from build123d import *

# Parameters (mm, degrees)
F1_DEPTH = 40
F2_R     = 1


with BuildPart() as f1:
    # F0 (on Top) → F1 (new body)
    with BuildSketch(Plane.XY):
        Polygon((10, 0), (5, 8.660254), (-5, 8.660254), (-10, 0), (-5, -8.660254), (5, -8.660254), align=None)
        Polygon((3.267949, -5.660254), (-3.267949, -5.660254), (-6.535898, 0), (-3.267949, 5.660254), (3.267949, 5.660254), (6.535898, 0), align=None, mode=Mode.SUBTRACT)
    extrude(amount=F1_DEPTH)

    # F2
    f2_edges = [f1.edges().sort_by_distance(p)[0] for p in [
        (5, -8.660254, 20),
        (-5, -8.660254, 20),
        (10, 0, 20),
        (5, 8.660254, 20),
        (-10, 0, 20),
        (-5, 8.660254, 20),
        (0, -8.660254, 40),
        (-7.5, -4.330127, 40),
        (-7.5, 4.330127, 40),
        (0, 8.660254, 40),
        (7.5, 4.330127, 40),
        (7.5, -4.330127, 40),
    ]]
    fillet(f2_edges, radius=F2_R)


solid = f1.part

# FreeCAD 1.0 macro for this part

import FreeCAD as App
import Part
import Sketcher
from FreeCAD import Vector
Q = App.Units.Quantity


def edges_at(feature, points):
    """Names of the edges that pass closest to the given points."""
    edges = feature.Shape.Edges
    near = lambda p: min(range(len(edges)), key=lambda i: edges[i].distToShape(Part.Vertex(*p))[0])
    return sorted({f"Edge{near(p) + 1}" for p in points})

doc = App.newDocument("Part")
body = doc.addObject("PartDesign::Body", "Body")

sketch1 = body.newObject("Sketcher::SketchObject", "Sketch")
sketch1.AttachmentSupport = (doc.getObject("XY_Plane"), [""])
sketch1.MapMode = "FlatFace"
sketch1.addGeometry(Part.LineSegment(Vector(10, 0, 0), Vector(5, 9, 0)), False)
sketch1.addGeometry(Part.LineSegment(Vector(5, 9, 0), Vector(-5, 9, 0)), False)
sketch1.addGeometry(Part.LineSegment(Vector(-5, 9, 0), Vector(-10, 0, 0)), False)
sketch1.addGeometry(Part.LineSegment(Vector(-10, 0, 0), Vector(-5, -9, 0)), False)
sketch1.addGeometry(Part.LineSegment(Vector(-5, -9, 0), Vector(5, -9, 0)), False)
sketch1.addGeometry(Part.LineSegment(Vector(5, -9, 0), Vector(10, 0, 0)), False)
sketch1.addGeometry(Part.LineSegment(Vector(7, 0, 0), Vector(3, -6, 0)), False)
sketch1.addGeometry(Part.LineSegment(Vector(3, -6, 0), Vector(-3, -6, 0)), False)
sketch1.addGeometry(Part.LineSegment(Vector(-3, -6, 0), Vector(-7, 0, 0)), False)
sketch1.addGeometry(Part.LineSegment(Vector(-7, 0, 0), Vector(-3, 6, 0)), False)
sketch1.addGeometry(Part.LineSegment(Vector(-3, 6, 0), Vector(3, 6, 0)), False)
sketch1.addGeometry(Part.LineSegment(Vector(3, 6, 0), Vector(7, 0, 0)), False)
sketch1.addConstraint(Sketcher.Constraint("Coincident", 0, 2, 1, 1))
sketch1.addConstraint(Sketcher.Constraint("Coincident", 1, 2, 2, 1))
sketch1.addConstraint(Sketcher.Constraint("Coincident", 2, 2, 3, 1))
sketch1.addConstraint(Sketcher.Constraint("Coincident", 3, 2, 4, 1))
sketch1.addConstraint(Sketcher.Constraint("Coincident", 4, 2, 5, 1))
sketch1.addConstraint(Sketcher.Constraint("Coincident", 5, 2, 0, 1))
sketch1.addConstraint(Sketcher.Constraint("Coincident", 6, 2, 7, 1))
sketch1.addConstraint(Sketcher.Constraint("Coincident", 7, 2, 8, 1))
sketch1.addConstraint(Sketcher.Constraint("Coincident", 8, 2, 9, 1))
sketch1.addConstraint(Sketcher.Constraint("Coincident", 9, 2, 10, 1))
sketch1.addConstraint(Sketcher.Constraint("Coincident", 10, 2, 11, 1))
sketch1.addConstraint(Sketcher.Constraint("Coincident", 11, 2, 6, 1))
sketch1.addConstraint(Sketcher.Constraint("Horizontal", 1))
sketch1.addConstraint(Sketcher.Constraint("Horizontal", 4))
sketch1.addConstraint(Sketcher.Constraint("Horizontal", 7))
sketch1.addConstraint(Sketcher.Constraint("Horizontal", 10))
sketch1.addConstraint(Sketcher.Constraint("Symmetric", 0, 2, 3, 2, -1, 1))
sketch1.addConstraint(Sketcher.Constraint("Symmetric", 2, 2, 5, 2, -1, 1))
sketch1.addConstraint(Sketcher.Constraint("Symmetric", 6, 2, 9, 2, -1, 1))
sketch1.addConstraint(Sketcher.Constraint("Symmetric", 8, 2, 11, 2, -1, 1))
sketch1.addConstraint(Sketcher.Constraint("PointOnObject", 2, 2, -1))
sketch1.addConstraint(Sketcher.Constraint("PointOnObject", 8, 2, -1))
sketch1.addConstraint(Sketcher.Constraint("Parallel", 2, 5))
sketch1.addConstraint(Sketcher.Constraint("Parallel", 5, 6))
sketch1.addConstraint(Sketcher.Constraint("Parallel", 3, 8))
sketch1.addConstraint(Sketcher.Constraint("Parallel", 8, 11))
sketch1.addConstraint(Sketcher.Constraint("Vertical", 1, 2, 3, 2))
sketch1.addConstraint(Sketcher.Constraint("DistanceX", 1, 2, 1, 1, 10.0))
sketch1.addConstraint(Sketcher.Constraint("Angle", 0, Q("120 deg")))
sketch1.addConstraint(Sketcher.Constraint("Distance", 0, 10.0))
sketch1.addConstraint(Sketcher.Constraint("DistanceY", 4, 2, 6, 2, 3.0))
sketch1.addConstraint(Sketcher.Constraint("DistanceX", 7, 2, 7, 1, 6.535898))
pad1 = body.newObject("PartDesign::Pad", "Pad")
pad1.Profile = sketch1
pad1.Length = 40
doc.recompute()

fillet = body.newObject("PartDesign::Fillet", "Fillet")
fillet.Base = (pad1, edges_at(pad1, [
    (5, -8.66, 20),
    (-5, -8.66, 20),
    (10, 0, 20),
    (5, 8.66, 20),
    (-10, 0, 20),
    (-5, 8.66, 20),
    (0, -8.66, 40),
    (-7.5, -4.33, 40),
    (-7.5, 4.33, 40),
    (0, 8.66, 40),
    (7.5, 4.33, 40),
    (7.5, -4.33, 40),
]))
fillet.Radius = 1

doc.recompute()
